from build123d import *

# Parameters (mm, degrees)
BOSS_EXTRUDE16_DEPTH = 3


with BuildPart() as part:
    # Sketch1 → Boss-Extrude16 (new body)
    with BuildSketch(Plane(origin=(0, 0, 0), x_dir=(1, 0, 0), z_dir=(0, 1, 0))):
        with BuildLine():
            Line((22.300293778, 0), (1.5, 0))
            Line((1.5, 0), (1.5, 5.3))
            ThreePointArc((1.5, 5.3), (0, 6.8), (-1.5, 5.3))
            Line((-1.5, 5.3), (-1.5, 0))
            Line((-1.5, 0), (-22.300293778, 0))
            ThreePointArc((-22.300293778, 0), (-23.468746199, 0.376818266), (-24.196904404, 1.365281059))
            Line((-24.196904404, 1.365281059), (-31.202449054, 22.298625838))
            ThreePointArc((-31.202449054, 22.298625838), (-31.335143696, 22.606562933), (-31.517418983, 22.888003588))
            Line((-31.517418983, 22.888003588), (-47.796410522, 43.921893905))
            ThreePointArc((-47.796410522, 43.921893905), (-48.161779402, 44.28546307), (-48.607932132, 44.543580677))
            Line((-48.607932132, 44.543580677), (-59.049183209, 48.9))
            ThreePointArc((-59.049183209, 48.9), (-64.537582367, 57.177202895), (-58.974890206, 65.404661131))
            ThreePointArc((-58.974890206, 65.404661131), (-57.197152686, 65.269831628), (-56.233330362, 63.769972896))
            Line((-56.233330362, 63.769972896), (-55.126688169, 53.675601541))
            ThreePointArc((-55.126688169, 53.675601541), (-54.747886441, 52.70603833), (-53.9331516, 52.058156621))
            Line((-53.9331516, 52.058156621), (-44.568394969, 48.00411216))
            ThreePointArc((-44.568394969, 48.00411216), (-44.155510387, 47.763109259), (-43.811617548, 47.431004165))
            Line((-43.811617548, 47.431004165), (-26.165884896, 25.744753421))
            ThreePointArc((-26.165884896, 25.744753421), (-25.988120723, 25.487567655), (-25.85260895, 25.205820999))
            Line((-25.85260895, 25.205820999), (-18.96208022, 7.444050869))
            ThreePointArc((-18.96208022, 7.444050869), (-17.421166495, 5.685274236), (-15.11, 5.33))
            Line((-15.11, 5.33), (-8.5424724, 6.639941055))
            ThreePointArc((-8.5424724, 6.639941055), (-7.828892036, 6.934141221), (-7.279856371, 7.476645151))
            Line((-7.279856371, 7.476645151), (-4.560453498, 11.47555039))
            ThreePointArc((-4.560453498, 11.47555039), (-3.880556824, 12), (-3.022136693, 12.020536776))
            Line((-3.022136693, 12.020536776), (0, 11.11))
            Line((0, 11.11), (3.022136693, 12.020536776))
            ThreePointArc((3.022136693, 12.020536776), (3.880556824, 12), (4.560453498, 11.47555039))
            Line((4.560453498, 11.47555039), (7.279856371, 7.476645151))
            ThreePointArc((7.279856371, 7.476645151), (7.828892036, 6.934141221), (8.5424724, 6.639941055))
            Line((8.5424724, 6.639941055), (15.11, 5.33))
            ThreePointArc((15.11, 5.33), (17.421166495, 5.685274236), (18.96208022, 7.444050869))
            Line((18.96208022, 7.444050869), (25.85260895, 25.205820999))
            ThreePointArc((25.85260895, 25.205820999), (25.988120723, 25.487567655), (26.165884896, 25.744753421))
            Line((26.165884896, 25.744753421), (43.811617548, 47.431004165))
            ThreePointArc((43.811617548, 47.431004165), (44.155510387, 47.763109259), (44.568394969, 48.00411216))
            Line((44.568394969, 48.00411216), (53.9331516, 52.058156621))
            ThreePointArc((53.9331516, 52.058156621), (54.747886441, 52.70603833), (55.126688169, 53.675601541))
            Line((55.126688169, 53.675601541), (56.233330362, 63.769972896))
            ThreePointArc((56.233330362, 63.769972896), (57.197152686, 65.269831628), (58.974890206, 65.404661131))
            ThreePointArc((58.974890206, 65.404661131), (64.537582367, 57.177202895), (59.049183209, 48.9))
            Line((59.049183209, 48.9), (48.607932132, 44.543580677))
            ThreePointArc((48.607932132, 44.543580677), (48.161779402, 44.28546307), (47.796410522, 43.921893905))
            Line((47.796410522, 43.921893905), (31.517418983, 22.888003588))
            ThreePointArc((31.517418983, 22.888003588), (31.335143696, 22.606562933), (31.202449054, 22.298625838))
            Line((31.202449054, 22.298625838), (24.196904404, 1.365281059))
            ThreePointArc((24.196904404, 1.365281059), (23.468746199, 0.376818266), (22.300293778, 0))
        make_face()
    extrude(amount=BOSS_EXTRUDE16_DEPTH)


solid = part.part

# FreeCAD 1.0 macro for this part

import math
import FreeCAD as App
import Part
import Sketcher

V = App.Vector
Q = App.Units.Quantity

doc = App.newDocument("Part")
params = doc.addObject("Spreadsheet::Sheet", "Params")
for row, (alias, value) in enumerate([
    ("sketch1_radius", "2 mm"),
    ("sketch1_radius2", "1.5 mm"),
    ("sketch1_height", "5.3 mm"),
    ("pad1_length", "3 mm"),
], start=1):
    params.set(f"A{row}", alias)
    params.set(f"B{row}", "=" + value)
    params.setAlias(f"B{row}", alias)

body = doc.addObject("PartDesign::Body", "Body")

sketch1 = doc.addObject("Sketcher::SketchObject", "Sketch")
body.addObject(sketch1)
sketch1.AttachmentSupport = (doc.XZ_Plane, [""])
sketch1.MapMode = "FlatFace"
sketch1.addGeometry(Part.LineSegment(V(1.5, 0, 0), V(22.3, 0, 0)), False)
sketch1.addGeometry(Part.ArcOfCircle(Part.Circle(V(22.3, -2, 0), V(0, 0, 1), 2), math.radians(19), math.radians(90)), False)
sketch1.addGeometry(Part.LineSegment(V(24.2, -1.4, 0), V(31.2, -22.3, 0)), False)
sketch1.addGeometry(Part.ArcOfCircle(Part.Circle(V(33.1, -21.7, 0), V(0, 0, 1), 2), math.radians(-161.5), math.radians(-142.26)), False)
sketch1.addGeometry(Part.LineSegment(V(31.5, -22.9, 0), V(47.8, -43.9, 0)), False)
sketch1.addGeometry(Part.ArcOfCircle(Part.Circle(V(49.4, -42.7, 0), V(0, 0, 1), 2), math.radians(-142), math.radians(-113)), False)
sketch1.addGeometry(Part.LineSegment(V(48.6, -44.5, 0), V(59, -48.9, 0)), False)
sketch1.addGeometry(Part.ArcOfCircle(Part.Circle(V(55.6, -57.1, 0), V(0, 0, 1), 8.9), math.radians(-68), math.radians(67)), False)
sketch1.addGeometry(Part.ArcOfCircle(Part.Circle(V(58.2, -63.6, 0), V(0, 0, 1), 2), math.radians(-174), math.radians(-68)), False)
sketch1.addGeometry(Part.LineSegment(V(56.2, -63.8, 0), V(55.1, -53.7, 0)), False)
sketch1.addGeometry(Part.ArcOfCircle(Part.Circle(V(53.1, -53.9, 0), V(0, 0, 1), 2), math.radians(6), math.radians(67)), False)
sketch1.addGeometry(Part.LineSegment(V(53.9, -52.1, 0), V(44.6, -48, 0)), False)
sketch1.addGeometry(Part.ArcOfCircle(Part.Circle(V(45.4, -46.2, 0), V(0, 0, 1), 2), math.radians(-141), math.radians(-113)), False)
sketch1.addGeometry(Part.LineSegment(V(43.8, -47.4, 0), V(26.2, -25.7, 0)), False)
sketch1.addGeometry(Part.ArcOfCircle(Part.Circle(V(27.7, -24.5, 0), V(0, 0, 1), 2), math.radians(-158.8), math.radians(-140.87)), False)
sketch1.addGeometry(Part.LineSegment(V(25.9, -25.2, 0), V(19, -7.4, 0)), False)
sketch1.addGeometry(Part.ArcOfCircle(Part.Circle(V(15.8, -8.7, 0), V(0, 0, 1), 3.4), math.radians(21), math.radians(101)), False)
sketch1.addGeometry(Part.LineSegment(V(15.1, -5.3, 0), V(8.5, -6.6, 0)), False)
sketch1.addGeometry(Part.ArcOfCircle(Part.Circle(V(8.9, -8.6, 0), V(0, 0, 1), 2), math.radians(101), math.radians(146)), False)
sketch1.addGeometry(Part.LineSegment(V(7.3, -7.5, 0), V(4.6, -11.5, 0)), False)
sketch1.addGeometry(Part.ArcOfCircle(Part.Circle(V(3.4, -10.7, 0), V(0, 0, 1), 1.4), math.radians(-107), math.radians(-34)), False)
sketch1.addGeometry(Part.LineSegment(V(3, -12, 0), V(0, -11.1, 0)), False)
sketch1.addGeometry(Part.LineSegment(V(0, -11.1, 0), V(-3, -12, 0)), False)
sketch1.addGeometry(Part.ArcOfCircle(Part.Circle(V(-3.4, -10.7, 0), V(0, 0, 1), 1.4), math.radians(-146), math.radians(-73)), False)
sketch1.addGeometry(Part.LineSegment(V(-4.6, -11.5, 0), V(-7.3, -7.5, 0)), False)
sketch1.addGeometry(Part.ArcOfCircle(Part.Circle(V(-8.9, -8.6, 0), V(0, 0, 1), 2), math.radians(34), math.radians(79)), False)
sketch1.addGeometry(Part.LineSegment(V(-8.5, -6.6, 0), V(-15.1, -5.3, 0)), False)
sketch1.addGeometry(Part.ArcOfCircle(Part.Circle(V(-15.8, -8.7, 0), V(0, 0, 1), 3.4), math.radians(79), math.radians(159)), False)
sketch1.addGeometry(Part.LineSegment(V(-19, -7.4, 0), V(-25.9, -25.2, 0)), False)
sketch1.addGeometry(Part.ArcOfCircle(Part.Circle(V(-27.7, -24.5, 0), V(0, 0, 1), 2), math.radians(-39.13), math.radians(-21.2)), False)
sketch1.addGeometry(Part.LineSegment(V(-26.2, -25.7, 0), V(-43.8, -47.4, 0)), False)
sketch1.addGeometry(Part.ArcOfCircle(Part.Circle(V(-45.4, -46.2, 0), V(0, 0, 1), 2), math.radians(-67), math.radians(-39)), False)
sketch1.addGeometry(Part.LineSegment(V(-44.6, -48, 0), V(-53.9, -52.1, 0)), False)
sketch1.addGeometry(Part.ArcOfCircle(Part.Circle(V(-53.1, -53.9, 0), V(0, 0, 1), 2), math.radians(113), math.radians(174)), False)
sketch1.addGeometry(Part.LineSegment(V(-55.1, -53.7, 0), V(-56.2, -63.8, 0)), False)
sketch1.addGeometry(Part.ArcOfCircle(Part.Circle(V(-58.2, -63.6, 0), V(0, 0, 1), 2), math.radians(-112), math.radians(-6)), False)
sketch1.addGeometry(Part.ArcOfCircle(Part.Circle(V(-55.6, -57.1, 0), V(0, 0, 1), 8.9), math.radians(113), math.radians(248)), False)
sketch1.addGeometry(Part.LineSegment(V(-59, -48.9, 0), V(-48.6, -44.5, 0)), False)
sketch1.addGeometry(Part.ArcOfCircle(Part.Circle(V(-49.4, -42.7, 0), V(0, 0, 1), 2), math.radians(-67), math.radians(-38)), False)
sketch1.addGeometry(Part.LineSegment(V(-47.8, -43.9, 0), V(-31.5, -22.9, 0)), False)
sketch1.addGeometry(Part.ArcOfCircle(Part.Circle(V(-33.1, -21.7, 0), V(0, 0, 1), 2), math.radians(-37.74), math.radians(-18.5)), False)
sketch1.addGeometry(Part.LineSegment(V(-31.2, -22.3, 0), V(-24.2, -1.4, 0)), False)
sketch1.addGeometry(Part.ArcOfCircle(Part.Circle(V(-22.3, -2, 0), V(0, 0, 1), 2), math.radians(90), math.radians(161)), False)
sketch1.addGeometry(Part.LineSegment(V(-22.3, 0, 0), V(-1.5, 0, 0)), False)
sketch1.addGeometry(Part.LineSegment(V(-1.5, 0, 0), V(-1.5, -5.3, 0)), False)
sketch1.addGeometry(Part.ArcOfCircle(Part.Circle(V(0, -5.3, 0), V(0, 0, 1), 1.5), math.radians(180), math.radians(360)), False)
sketch1.addGeometry(Part.LineSegment(V(1.5, -5.3, 0), V(1.5, 0, 0)), False)
sketch1.addConstraint(Sketcher.Constraint("Tangent", 0, 2, 1, 2))
sketch1.addConstraint(Sketcher.Constraint("Tangent", 1, 1, 2, 1))
sketch1.addConstraint(Sketcher.Constraint("Tangent", 2, 2, 3, 1))
sketch1.addConstraint(Sketcher.Constraint("Tangent", 3, 2, 4, 1))
sketch1.addConstraint(Sketcher.Constraint("Tangent", 4, 2, 5, 1))
sketch1.addConstraint(Sketcher.Constraint("Tangent", 5, 2, 6, 1))
sketch1.addConstraint(Sketcher.Constraint("Tangent", 6, 2, 7, 2))
sketch1.addConstraint(Sketcher.Constraint("Tangent", 7, 1, 8, 2))
sketch1.addConstraint(Sketcher.Constraint("Tangent", 8, 1, 9, 1))
sketch1.addConstraint(Sketcher.Constraint("Tangent", 9, 2, 10, 1))
sketch1.addConstraint(Sketcher.Constraint("Tangent", 10, 2, 11, 1))
sketch1.addConstraint(Sketcher.Constraint("Tangent", 11, 2, 12, 2))
sketch1.addConstraint(Sketcher.Constraint("Tangent", 12, 1, 13, 1))
sketch1.addConstraint(Sketcher.Constraint("Tangent", 13, 2, 14, 2))
sketch1.addConstraint(Sketcher.Constraint("Tangent", 14, 1, 15, 1))
sketch1.addConstraint(Sketcher.Constraint("Tangent", 15, 2, 16, 1))
sketch1.addConstraint(Sketcher.Constraint("Tangent", 16, 2, 17, 1))
sketch1.addConstraint(Sketcher.Constraint("Tangent", 17, 2, 18, 1))
sketch1.addConstraint(Sketcher.Constraint("Tangent", 18, 2, 19, 1))
sketch1.addConstraint(Sketcher.Constraint("Tangent", 19, 2, 20, 2))
sketch1.addConstraint(Sketcher.Constraint("Tangent", 20, 1, 21, 1))
sketch1.addConstraint(Sketcher.Constraint("Coincident", 21, 2, 22, 1))
sketch1.addConstraint(Sketcher.Constraint("Tangent", 22, 2, 23, 2))
sketch1.addConstraint(Sketcher.Constraint("Tangent", 23, 1, 24, 1))
sketch1.addConstraint(Sketcher.Constraint("Tangent", 24, 2, 25, 1))
sketch1.addConstraint(Sketcher.Constraint("Tangent", 25, 2, 26, 1))
sketch1.addConstraint(Sketcher.Constraint("Tangent", 26, 2, 27, 1))
sketch1.addConstraint(Sketcher.Constraint("Tangent", 27, 2, 28, 1))
sketch1.addConstraint(Sketcher.Constraint("Tangent", 28, 2, 29, 2))
sketch1.addConstraint(Sketcher.Constraint("Tangent", 29, 1, 30, 1))
sketch1.addConstraint(Sketcher.Constraint("Tangent", 30, 2, 31, 2))
sketch1.addConstraint(Sketcher.Constraint("Tangent", 31, 1, 32, 1))
sketch1.addConstraint(Sketcher.Constraint("Tangent", 32, 2, 33, 1))
sketch1.addConstraint(Sketcher.Constraint("Tangent", 33, 2, 34, 1))
sketch1.addConstraint(Sketcher.Constraint("Tangent", 34, 2, 35, 2))
sketch1.addConstraint(Sketcher.Constraint("Tangent", 35, 1, 36, 2))
sketch1.addConstraint(Sketcher.Constraint("Tangent", 36, 1, 37, 1))
sketch1.addConstraint(Sketcher.Constraint("Tangent", 37, 2, 38, 1))
sketch1.addConstraint(Sketcher.Constraint("Tangent", 38, 2, 39, 1))
sketch1.addConstraint(Sketcher.Constraint("Tangent", 39, 2, 40, 1))
sketch1.addConstraint(Sketcher.Constraint("Tangent", 40, 2, 41, 1))
sketch1.addConstraint(Sketcher.Constraint("Tangent", 41, 2, 42, 2))
sketch1.addConstraint(Sketcher.Constraint("Tangent", 42, 1, 43, 1))
sketch1.addConstraint(Sketcher.Constraint("Coincident", 43, 2, 44, 1))
sketch1.addConstraint(Sketcher.Constraint("Tangent", 44, 2, 45, 1))
sketch1.addConstraint(Sketcher.Constraint("Tangent", 45, 2, 46, 1))
sketch1.addConstraint(Sketcher.Constraint("Coincident", 46, 2, 0, 1))
sketch1.addConstraint(Sketcher.Constraint("Horizontal", 0))
sketch1.addConstraint(Sketcher.Constraint("Horizontal", 43))
sketch1.addConstraint(Sketcher.Constraint("Vertical", 44))
sketch1.addConstraint(Sketcher.Constraint("Vertical", 46))
sketch1.addConstraint(Sketcher.Constraint("Equal", 1, 3))
sketch1.addConstraint(Sketcher.Constraint("Equal", 3, 5))
sketch1.addConstraint(Sketcher.Constraint("Equal", 5, 8))
sketch1.addConstraint(Sketcher.Constraint("Equal", 8, 10))
sketch1.addConstraint(Sketcher.Constraint("Equal", 10, 12))
sketch1.addConstraint(Sketcher.Constraint("Equal", 12, 14))
sketch1.addConstraint(Sketcher.Constraint("Equal", 14, 18))
sketch1.addConstraint(Sketcher.Constraint("Equal", 20, 23))
sketch1.addConstraint(Sketcher.Constraint("Equal", 18, 25))
sketch1.addConstraint(Sketcher.Constraint("Equal", 16, 27))
sketch1.addConstraint(Sketcher.Constraint("Equal", 25, 29))
sketch1.addConstraint(Sketcher.Constraint("Equal", 29, 31))
sketch1.addConstraint(Sketcher.Constraint("Equal", 31, 33))
sketch1.addConstraint(Sketcher.Constraint("Equal", 33, 35))
sketch1.addConstraint(Sketcher.Constraint("Equal", 7, 36))
sketch1.addConstraint(Sketcher.Constraint("Equal", 35, 38))
sketch1.addConstraint(Sketcher.Constraint("Equal", 38, 40))
sketch1.addConstraint(Sketcher.Constraint("Equal", 40, 42))
sketch1.addConstraint(Sketcher.Constraint("Symmetric", 0, 2, 42, 1, -1, 1))
sketch1.addConstraint(Sketcher.Constraint("Symmetric", 20, 3, 23, 3, -2))
sketch1.addConstraint(Sketcher.Constraint("Symmetric", 18, 3, 25, 3, -2))
sketch1.addConstraint(Sketcher.Constraint("Symmetric", 16, 3, 27, 3, -2))
sketch1.addConstraint(Sketcher.Constraint("Symmetric", 14, 3, 29, 3, -2))
sketch1.addConstraint(Sketcher.Constraint("Symmetric", 12, 3, 31, 3, -2))
sketch1.addConstraint(Sketcher.Constraint("Symmetric", 10, 3, 33, 3, -2))
sketch1.addConstraint(Sketcher.Constraint("Symmetric", 8, 3, 35, 3, -2))
sketch1.addConstraint(Sketcher.Constraint("Symmetric", 5, 3, 38, 3, -2))
sketch1.addConstraint(Sketcher.Constraint("Symmetric", 3, 3, 40, 3, -2))
sketch1.addConstraint(Sketcher.Constraint("Symmetric", 43, 2, 46, 2, -2))
sketch1.addConstraint(Sketcher.Constraint("PointOnObject", 21, 2, -2))
sketch1.addConstraint(Sketcher.Constraint("Horizontal", 7, 3, 36, 3))
sketch1.addConstraint(Sketcher.Constraint("Radius", 1, Q("2 mm")))
sketch1.addConstraint(Sketcher.Constraint("Radius", 45, Q("1.5 mm")))
sketch1.addConstraint(Sketcher.Constraint("DistanceY", 44, 2, 44, 1, Q("5.3 mm")))
sketch1.addConstraint(Sketcher.Constraint("DistanceY", 20, 3, -1, 1, Q("10.7 mm")))
sketch1.addConstraint(Sketcher.Constraint("DistanceY", 6, 2, -1, 1, Q("48.9 mm")))
sketch1.addConstraint(Sketcher.Constraint("DistanceX", -1, 1, 20, 3, Q("3.42 mm")))
sketch1.addConstraint(Sketcher.Constraint("DistanceX", -1, 1, 16, 2, Q("15.11 mm")))
sketch1.addConstraint(Sketcher.Constraint("DistanceY", 16, 2, -1, 1, Q("5.33 mm")))
sketch1.addConstraint(Sketcher.Constraint("DistanceY", 21, 2, -1, 1, Q("11.11 mm")))
sketch1.addConstraint(Sketcher.Constraint("Radius", 20, Q("1.379171 mm")))
sketch1.addConstraint(Sketcher.Constraint("Radius", 7, Q("8.925237 mm")))
sketch1.addConstraint(Sketcher.Constraint("Radius", 16, Q("3.415246 mm")))
sketch1.addConstraint(Sketcher.Constraint("DistanceX", -1, 1, 10, 3, Q("53.1386 mm")))
sketch1.addConstraint(Sketcher.Constraint("DistanceY", 9, 2, -1, 1, Q("53.675602 mm")))
sketch1.addConstraint(Sketcher.Constraint("Distance", 2, Q("22.074478 mm")))
sketch1.addConstraint(Sketcher.Constraint("Distance", 4, Q("26.597558 mm")))
sketch1.addConstraint(Sketcher.Constraint("Distance", 9, Q("10.154851 mm")))
sketch1.addConstraint(Sketcher.Constraint("Distance", 13, Q("27.958279 mm")))
sketch1.addConstraint(Sketcher.Constraint("Distance", 19, Q("4.835948 mm")))
sketch1.addConstraint(Sketcher.Constraint("DistanceX", 0, 1, 0, 2, Q("20.800294 mm")))
sketch1.addConstraint(Sketcher.Constraint("DistanceX", -1, 1, 3, 3, Q("33.09906 mm")))
sketch1.addConstraint(Sketcher.Constraint("DistanceX", -1, 1, 5, 3, Q("49.378051 mm")))
sketch1.addConstraint(Sketcher.Constraint("DistanceX", -1, 1, 8, 3, Q("58.221419 mm")))
sketch1.addConstraint(Sketcher.Constraint("DistanceX", -1, 1, 18, 3, Q("8.933681 mm")))
sketch1.addConstraint(Sketcher.Constraint("DistanceX", -1, 1, 10, 2, Q("53.933152 mm")))
sketch1.addConstraint(Sketcher.Constraint("DistanceX", -1, 1, 14, 1, Q("25.852609 mm")))
sketch1.addConstraint(Sketcher.Constraint("DistanceY", 14, 1, -1, 1, Q("25.205821 mm")))
sketch1.setExpression("Constraints[82]", "Params.sketch1_radius")
sketch1.setExpression("Constraints[83]", "Params.sketch1_radius2")
sketch1.setExpression("Constraints[84]", "Params.sketch1_height")
pad1 = doc.addObject("PartDesign::Pad", "Pad")
body.addObject(pad1)
pad1.Profile = sketch1
pad1.setExpression("Length", "Params.pad1_length")
pad1.Reversed = True

doc.recompute()
